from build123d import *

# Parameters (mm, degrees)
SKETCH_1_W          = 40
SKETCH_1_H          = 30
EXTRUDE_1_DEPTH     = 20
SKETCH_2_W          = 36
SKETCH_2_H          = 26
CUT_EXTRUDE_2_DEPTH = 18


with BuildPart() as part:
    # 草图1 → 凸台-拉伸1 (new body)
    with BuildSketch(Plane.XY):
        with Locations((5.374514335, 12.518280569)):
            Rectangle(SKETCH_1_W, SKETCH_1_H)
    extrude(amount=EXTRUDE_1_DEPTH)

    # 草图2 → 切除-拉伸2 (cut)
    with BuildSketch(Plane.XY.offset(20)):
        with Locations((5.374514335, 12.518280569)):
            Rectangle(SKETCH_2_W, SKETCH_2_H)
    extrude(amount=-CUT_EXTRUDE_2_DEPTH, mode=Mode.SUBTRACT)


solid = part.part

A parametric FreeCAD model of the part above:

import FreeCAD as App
import Part
import Sketcher


def add_polygon(sketch, points):
    """Adds a closed chain of lines whose ends are joined by coincident constraints."""
    first, n = sketch.GeometryCount, len(points)
    for a, b in zip(points, points[1:] + points[:1]):
        sketch.addGeometry(Part.LineSegment(App.Vector(*a, 0), App.Vector(*b, 0)), False)
    for i in range(n):
        sketch.addConstraint(Sketcher.Constraint("Coincident", first + i, 2, first + (i + 1) % n, 1))

doc = App.newDocument("Part")
body = doc.addObject("PartDesign::Body", "Body")

# Sketch on XY plane
sketch1 = body.newObject("Sketcher::SketchObject", "Sketch")
sketch1.AttachmentSupport = (doc.getObject("XY_Plane"), [""])
sketch1.MapMode = "FlatFace"
add_polygon(sketch1, [(-15, 28), (-15, -2), (25, -2), (25, 28)])  # lines 0-3
sketch1.addConstraint(Sketcher.Constraint("Vertical", 0))
sketch1.addConstraint(Sketcher.Constraint("Horizontal", 1))
sketch1.addConstraint(Sketcher.Constraint("Vertical", 2))
sketch1.addConstraint(Sketcher.Constraint("Horizontal", 3))
sketch1.addConstraint(Sketcher.Constraint("DistanceX", 1, 1, 1, 2, 40.0))
sketch1.addConstraint(Sketcher.Constraint("DistanceY", 0, 2, 0, 1, 30.0))
sketch1.addConstraint(Sketcher.Constraint("DistanceY", 0, 2, -1, 1, 2.481719))
sketch1.addConstraint(Sketcher.Constraint("DistanceX", 0, 2, -1, 1, 14.625486))
pad1 = body.newObject("PartDesign::Pad", "Pad")
pad1.Profile = sketch1
pad1.Length = 20

# Sketch on XY plane
sketch2 = body.newObject("Sketcher::SketchObject", "Sketch001")
sketch2.AttachmentSupport = (doc.getObject("XY_Plane"), [""])
sketch2.MapMode = "FlatFace"
sketch2.AttachmentOffset = App.Placement(App.Vector(0, 0, 20), App.Rotation())
add_polygon(sketch2, [(-13, 26), (-13, 0), (23, 0), (23, 26)])  # lines 0-3
sketch2.addConstraint(Sketcher.Constraint("Vertical", 0))
sketch2.addConstraint(Sketcher.Constraint("Horizontal", 1))
sketch2.addConstraint(Sketcher.Constraint("Vertical", 2))
sketch2.addConstraint(Sketcher.Constraint("Horizontal", 3))
sketch2.addConstraint(Sketcher.Constraint("DistanceX", 1, 1, 1, 2, 36.0))
sketch2.addConstraint(Sketcher.Constraint("DistanceY", 0, 2, 0, 1, 26.0))
sketch2.addConstraint(Sketcher.Constraint("DistanceY", 0, 2, -1, 1, 0.481719))
sketch2.addConstraint(Sketcher.Constraint("DistanceX", 0, 2, -1, 1, 12.625486))
pocket1 = body.newObject("PartDesign::Pocket", "Pocket")
pocket1.Profile = sketch2
pocket1.Length = 18

doc.recompute()
